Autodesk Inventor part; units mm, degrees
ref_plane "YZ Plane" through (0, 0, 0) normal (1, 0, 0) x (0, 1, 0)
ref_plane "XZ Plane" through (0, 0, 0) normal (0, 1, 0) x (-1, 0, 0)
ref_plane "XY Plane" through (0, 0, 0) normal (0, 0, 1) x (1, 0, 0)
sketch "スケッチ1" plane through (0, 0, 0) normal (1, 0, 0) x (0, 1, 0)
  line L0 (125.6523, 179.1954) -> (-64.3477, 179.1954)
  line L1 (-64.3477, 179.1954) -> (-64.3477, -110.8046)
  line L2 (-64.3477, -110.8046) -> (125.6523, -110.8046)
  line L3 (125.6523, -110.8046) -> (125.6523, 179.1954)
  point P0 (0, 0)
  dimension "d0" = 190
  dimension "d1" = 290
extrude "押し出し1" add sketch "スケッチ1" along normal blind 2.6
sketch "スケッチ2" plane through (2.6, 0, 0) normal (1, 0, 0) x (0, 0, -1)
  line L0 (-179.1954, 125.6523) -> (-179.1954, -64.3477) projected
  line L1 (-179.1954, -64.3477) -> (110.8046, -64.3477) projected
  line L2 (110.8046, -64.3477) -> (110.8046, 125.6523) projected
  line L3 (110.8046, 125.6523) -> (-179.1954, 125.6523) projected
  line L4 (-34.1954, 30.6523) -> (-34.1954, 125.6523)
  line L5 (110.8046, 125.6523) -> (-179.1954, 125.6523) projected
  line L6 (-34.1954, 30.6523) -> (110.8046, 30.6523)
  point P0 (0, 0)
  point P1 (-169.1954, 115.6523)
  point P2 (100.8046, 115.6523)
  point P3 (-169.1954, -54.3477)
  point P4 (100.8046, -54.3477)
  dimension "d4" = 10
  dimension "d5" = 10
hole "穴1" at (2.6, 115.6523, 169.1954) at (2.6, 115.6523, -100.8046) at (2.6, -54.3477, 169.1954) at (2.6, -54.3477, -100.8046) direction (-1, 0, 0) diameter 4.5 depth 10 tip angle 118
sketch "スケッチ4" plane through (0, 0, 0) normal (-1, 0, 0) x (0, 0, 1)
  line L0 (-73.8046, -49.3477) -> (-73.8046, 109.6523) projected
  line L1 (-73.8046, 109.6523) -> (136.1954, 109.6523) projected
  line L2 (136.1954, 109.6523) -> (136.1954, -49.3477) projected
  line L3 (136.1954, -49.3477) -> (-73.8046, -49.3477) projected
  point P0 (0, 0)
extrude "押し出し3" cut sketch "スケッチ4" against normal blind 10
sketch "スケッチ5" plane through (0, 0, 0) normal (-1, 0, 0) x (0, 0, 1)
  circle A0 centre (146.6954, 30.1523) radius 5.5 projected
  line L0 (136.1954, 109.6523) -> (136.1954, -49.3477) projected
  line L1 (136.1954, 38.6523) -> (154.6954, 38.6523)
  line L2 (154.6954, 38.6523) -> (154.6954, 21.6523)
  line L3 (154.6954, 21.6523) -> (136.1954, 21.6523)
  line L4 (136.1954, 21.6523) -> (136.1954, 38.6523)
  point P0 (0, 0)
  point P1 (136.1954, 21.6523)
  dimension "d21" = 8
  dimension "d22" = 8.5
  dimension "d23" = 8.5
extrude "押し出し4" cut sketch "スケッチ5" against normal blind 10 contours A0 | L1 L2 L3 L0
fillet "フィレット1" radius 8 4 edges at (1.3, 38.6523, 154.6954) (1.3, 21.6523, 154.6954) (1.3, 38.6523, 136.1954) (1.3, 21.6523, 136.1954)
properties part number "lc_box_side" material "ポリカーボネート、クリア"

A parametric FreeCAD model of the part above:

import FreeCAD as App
import Part
import Sketcher

V = App.Vector


def edges_at(feature, points):
    """Names of the edges that pass closest to the given points."""
    edges = feature.Shape.Edges
    near = lambda p: min(range(len(edges)), key=lambda i: edges[i].distToShape(Part.Vertex(*p))[0])
    return sorted({f"Edge{near(p) + 1}" for p in points})


def add_polygon(sketch, points):
    """Adds a closed chain of lines whose ends are joined by coincident constraints."""
    first, n = sketch.GeometryCount, len(points)
    for a, b in zip(points, points[1:] + points[:1]):
        sketch.addGeometry(Part.LineSegment(App.Vector(*a, 0), App.Vector(*b, 0)), False)
    for i in range(n):
        sketch.addConstraint(Sketcher.Constraint("Coincident", first + i, 2, first + (i + 1) % n, 1))

doc = App.newDocument("Part")
body = doc.addObject("PartDesign::Body", "Body")

# Sketch on YZ plane
sketch1 = doc.addObject("Sketcher::SketchObject", "Sketch")
body.addObject(sketch1)
sketch1.AttachmentSupport = (doc.YZ_Plane, [""])
sketch1.MapMode = "FlatFace"
add_polygon(sketch1, [(125.6523, -110.8046), (125.6523, 179.1954), (-64.3477, 179.1954), (-64.3477, -110.8046)])  # lines 0-3
sketch1.addConstraint([
    Sketcher.Constraint("Vertical", 0),
    Sketcher.Constraint("Horizontal", 1),
    Sketcher.Constraint("Vertical", 2),
    Sketcher.Constraint("Horizontal", 3),
    Sketcher.Constraint("DistanceX", 1, 2, 1, 1, 190.0),
    Sketcher.Constraint("DistanceY", 0, 1, 0, 2, 290.0),
    Sketcher.Constraint("DistanceX", -1, 1, 0, 2, 125.6523),
    Sketcher.Constraint("DistanceY", -1, 1, 0, 2, 179.1954),
])
pad1 = doc.addObject("PartDesign::Pad", "Pad")
body.addObject(pad1)
pad1.Profile = sketch1
pad1.Length = 2.6

# Sketch on YZ plane
sketch2 = doc.addObject("Sketcher::SketchObject", "Sketch001")
body.addObject(sketch2)
sketch2.AttachmentSupport = (doc.YZ_Plane, [""])
sketch2.MapMode = "FlatFace"
sketch2.AttachmentOffset = App.Placement(V(0, 0, 2.6), App.Rotation())
sketch2.addGeometry([
    Part.Circle(V(115.6523, 169.1954, 0), V(0, 0, 1), 2.25),
    Part.Circle(V(115.6523, -100.8046, 0), V(0, 0, 1), 2.25),
    Part.Circle(V(-54.3477, 169.1954, 0), V(0, 0, 1), 2.25),
    Part.Circle(V(-54.3477, -100.8046, 0), V(0, 0, 1), 2.25),
], False)
sketch2.addConstraint([
    Sketcher.Constraint("Equal", 0, 1),
    Sketcher.Constraint("Equal", 1, 2),
    Sketcher.Constraint("Equal", 2, 3),
    Sketcher.Constraint("Horizontal", 0, 3, 2, 3),
    Sketcher.Constraint("Horizontal", 1, 3, 3, 3),
    Sketcher.Constraint("Vertical", 0, 3, 1, 3),
    Sketcher.Constraint("Vertical", 2, 3, 3, 3),
    Sketcher.Constraint("Diameter", 0, 4.5),
    Sketcher.Constraint("DistanceY", 1, 3, 0, 3, 270.0),
    Sketcher.Constraint("DistanceX", 2, 3, 0, 3, 170.0),
    Sketcher.Constraint("DistanceX", -1, 1, 0, 3, 115.6523),
    Sketcher.Constraint("DistanceY", -1, 1, 0, 3, 169.1954),
])
doc.recompute()
hole = doc.addObject("PartDesign::Hole", "Hole")
body.addObject(hole)
hole.Profile = sketch2
hole.ThreadType = "None"
hole.Diameter = 4.5
hole.DepthType = "Dimension"
hole.Depth = 10
hole.DrillPoint = "Angled"
hole.DrillPointAngle = 118

# Sketch on YZ plane
sketch3 = doc.addObject("Sketcher::SketchObject", "Sketch002")
body.addObject(sketch3)
sketch3.AttachmentSupport = (doc.YZ_Plane, [""])
sketch3.MapMode = "FlatFace"
add_polygon(sketch3, [(109.6523, -73.8046), (-49.3477, -73.8046), (-49.3477, 136.1954), (109.6523, 136.1954)])  # lines 0-3
sketch3.addConstraint([
    Sketcher.Constraint("Horizontal", 0),
    Sketcher.Constraint("Vertical", 1),
    Sketcher.Constraint("Horizontal", 2),
    Sketcher.Constraint("Vertical", 3),
    Sketcher.Constraint("DistanceX", 0, 2, 0, 1, 159.0),
    Sketcher.Constraint("DistanceY", 1, 1, 1, 2, 210.0),
    Sketcher.Constraint("DistanceX", 0, 2, -1, 1, 49.3477),
    Sketcher.Constraint("DistanceY", 0, 2, -1, 1, 73.8046),
])
pocket1 = doc.addObject("PartDesign::Pocket", "Pocket")
body.addObject(pocket1)
pocket1.Profile = sketch3
pocket1.Length = 10
pocket1.Reversed = True

# Sketch on YZ plane
sketch4 = doc.addObject("Sketcher::SketchObject", "Sketch003")
body.addObject(sketch4)
sketch4.AttachmentSupport = (doc.YZ_Plane, [""])
sketch4.MapMode = "FlatFace"
add_polygon(sketch4, [(38.6523, 154.6954), (38.6523, 136.1954), (21.6523, 136.1954), (21.6523, 154.6954)])  # lines 0-3
sketch4.addConstraint([
    Sketcher.Constraint("Vertical", 0),
    Sketcher.Constraint("Horizontal", 1),
    Sketcher.Constraint("Vertical", 2),
    Sketcher.Constraint("Horizontal", 3),
    Sketcher.Constraint("DistanceX", 1, 2, 1, 1, 17.0),
    Sketcher.Constraint("DistanceY", 0, 2, 0, 1, 18.5),
    Sketcher.Constraint("DistanceX", -1, 1, 0, 2, 38.6523),
    Sketcher.Constraint("DistanceY", -1, 1, 0, 2, 136.1954),
])
pocket2 = doc.addObject("PartDesign::Pocket", "Pocket001")
body.addObject(pocket2)
pocket2.Profile = sketch4
pocket2.Length = 10
pocket2.Reversed = True
doc.recompute()

fillet = doc.addObject("PartDesign::Fillet", "Fillet")
body.addObject(fillet)
fillet.Base = (pocket2, edges_at(pocket2, [
    (1.3, 38.652, 154.695),
    (1.3, 21.652, 154.695),
    (1.3, 38.652, 136.195),
    (1.3, 21.652, 136.195),
]))
fillet.Radius = 8

doc.recompute()
